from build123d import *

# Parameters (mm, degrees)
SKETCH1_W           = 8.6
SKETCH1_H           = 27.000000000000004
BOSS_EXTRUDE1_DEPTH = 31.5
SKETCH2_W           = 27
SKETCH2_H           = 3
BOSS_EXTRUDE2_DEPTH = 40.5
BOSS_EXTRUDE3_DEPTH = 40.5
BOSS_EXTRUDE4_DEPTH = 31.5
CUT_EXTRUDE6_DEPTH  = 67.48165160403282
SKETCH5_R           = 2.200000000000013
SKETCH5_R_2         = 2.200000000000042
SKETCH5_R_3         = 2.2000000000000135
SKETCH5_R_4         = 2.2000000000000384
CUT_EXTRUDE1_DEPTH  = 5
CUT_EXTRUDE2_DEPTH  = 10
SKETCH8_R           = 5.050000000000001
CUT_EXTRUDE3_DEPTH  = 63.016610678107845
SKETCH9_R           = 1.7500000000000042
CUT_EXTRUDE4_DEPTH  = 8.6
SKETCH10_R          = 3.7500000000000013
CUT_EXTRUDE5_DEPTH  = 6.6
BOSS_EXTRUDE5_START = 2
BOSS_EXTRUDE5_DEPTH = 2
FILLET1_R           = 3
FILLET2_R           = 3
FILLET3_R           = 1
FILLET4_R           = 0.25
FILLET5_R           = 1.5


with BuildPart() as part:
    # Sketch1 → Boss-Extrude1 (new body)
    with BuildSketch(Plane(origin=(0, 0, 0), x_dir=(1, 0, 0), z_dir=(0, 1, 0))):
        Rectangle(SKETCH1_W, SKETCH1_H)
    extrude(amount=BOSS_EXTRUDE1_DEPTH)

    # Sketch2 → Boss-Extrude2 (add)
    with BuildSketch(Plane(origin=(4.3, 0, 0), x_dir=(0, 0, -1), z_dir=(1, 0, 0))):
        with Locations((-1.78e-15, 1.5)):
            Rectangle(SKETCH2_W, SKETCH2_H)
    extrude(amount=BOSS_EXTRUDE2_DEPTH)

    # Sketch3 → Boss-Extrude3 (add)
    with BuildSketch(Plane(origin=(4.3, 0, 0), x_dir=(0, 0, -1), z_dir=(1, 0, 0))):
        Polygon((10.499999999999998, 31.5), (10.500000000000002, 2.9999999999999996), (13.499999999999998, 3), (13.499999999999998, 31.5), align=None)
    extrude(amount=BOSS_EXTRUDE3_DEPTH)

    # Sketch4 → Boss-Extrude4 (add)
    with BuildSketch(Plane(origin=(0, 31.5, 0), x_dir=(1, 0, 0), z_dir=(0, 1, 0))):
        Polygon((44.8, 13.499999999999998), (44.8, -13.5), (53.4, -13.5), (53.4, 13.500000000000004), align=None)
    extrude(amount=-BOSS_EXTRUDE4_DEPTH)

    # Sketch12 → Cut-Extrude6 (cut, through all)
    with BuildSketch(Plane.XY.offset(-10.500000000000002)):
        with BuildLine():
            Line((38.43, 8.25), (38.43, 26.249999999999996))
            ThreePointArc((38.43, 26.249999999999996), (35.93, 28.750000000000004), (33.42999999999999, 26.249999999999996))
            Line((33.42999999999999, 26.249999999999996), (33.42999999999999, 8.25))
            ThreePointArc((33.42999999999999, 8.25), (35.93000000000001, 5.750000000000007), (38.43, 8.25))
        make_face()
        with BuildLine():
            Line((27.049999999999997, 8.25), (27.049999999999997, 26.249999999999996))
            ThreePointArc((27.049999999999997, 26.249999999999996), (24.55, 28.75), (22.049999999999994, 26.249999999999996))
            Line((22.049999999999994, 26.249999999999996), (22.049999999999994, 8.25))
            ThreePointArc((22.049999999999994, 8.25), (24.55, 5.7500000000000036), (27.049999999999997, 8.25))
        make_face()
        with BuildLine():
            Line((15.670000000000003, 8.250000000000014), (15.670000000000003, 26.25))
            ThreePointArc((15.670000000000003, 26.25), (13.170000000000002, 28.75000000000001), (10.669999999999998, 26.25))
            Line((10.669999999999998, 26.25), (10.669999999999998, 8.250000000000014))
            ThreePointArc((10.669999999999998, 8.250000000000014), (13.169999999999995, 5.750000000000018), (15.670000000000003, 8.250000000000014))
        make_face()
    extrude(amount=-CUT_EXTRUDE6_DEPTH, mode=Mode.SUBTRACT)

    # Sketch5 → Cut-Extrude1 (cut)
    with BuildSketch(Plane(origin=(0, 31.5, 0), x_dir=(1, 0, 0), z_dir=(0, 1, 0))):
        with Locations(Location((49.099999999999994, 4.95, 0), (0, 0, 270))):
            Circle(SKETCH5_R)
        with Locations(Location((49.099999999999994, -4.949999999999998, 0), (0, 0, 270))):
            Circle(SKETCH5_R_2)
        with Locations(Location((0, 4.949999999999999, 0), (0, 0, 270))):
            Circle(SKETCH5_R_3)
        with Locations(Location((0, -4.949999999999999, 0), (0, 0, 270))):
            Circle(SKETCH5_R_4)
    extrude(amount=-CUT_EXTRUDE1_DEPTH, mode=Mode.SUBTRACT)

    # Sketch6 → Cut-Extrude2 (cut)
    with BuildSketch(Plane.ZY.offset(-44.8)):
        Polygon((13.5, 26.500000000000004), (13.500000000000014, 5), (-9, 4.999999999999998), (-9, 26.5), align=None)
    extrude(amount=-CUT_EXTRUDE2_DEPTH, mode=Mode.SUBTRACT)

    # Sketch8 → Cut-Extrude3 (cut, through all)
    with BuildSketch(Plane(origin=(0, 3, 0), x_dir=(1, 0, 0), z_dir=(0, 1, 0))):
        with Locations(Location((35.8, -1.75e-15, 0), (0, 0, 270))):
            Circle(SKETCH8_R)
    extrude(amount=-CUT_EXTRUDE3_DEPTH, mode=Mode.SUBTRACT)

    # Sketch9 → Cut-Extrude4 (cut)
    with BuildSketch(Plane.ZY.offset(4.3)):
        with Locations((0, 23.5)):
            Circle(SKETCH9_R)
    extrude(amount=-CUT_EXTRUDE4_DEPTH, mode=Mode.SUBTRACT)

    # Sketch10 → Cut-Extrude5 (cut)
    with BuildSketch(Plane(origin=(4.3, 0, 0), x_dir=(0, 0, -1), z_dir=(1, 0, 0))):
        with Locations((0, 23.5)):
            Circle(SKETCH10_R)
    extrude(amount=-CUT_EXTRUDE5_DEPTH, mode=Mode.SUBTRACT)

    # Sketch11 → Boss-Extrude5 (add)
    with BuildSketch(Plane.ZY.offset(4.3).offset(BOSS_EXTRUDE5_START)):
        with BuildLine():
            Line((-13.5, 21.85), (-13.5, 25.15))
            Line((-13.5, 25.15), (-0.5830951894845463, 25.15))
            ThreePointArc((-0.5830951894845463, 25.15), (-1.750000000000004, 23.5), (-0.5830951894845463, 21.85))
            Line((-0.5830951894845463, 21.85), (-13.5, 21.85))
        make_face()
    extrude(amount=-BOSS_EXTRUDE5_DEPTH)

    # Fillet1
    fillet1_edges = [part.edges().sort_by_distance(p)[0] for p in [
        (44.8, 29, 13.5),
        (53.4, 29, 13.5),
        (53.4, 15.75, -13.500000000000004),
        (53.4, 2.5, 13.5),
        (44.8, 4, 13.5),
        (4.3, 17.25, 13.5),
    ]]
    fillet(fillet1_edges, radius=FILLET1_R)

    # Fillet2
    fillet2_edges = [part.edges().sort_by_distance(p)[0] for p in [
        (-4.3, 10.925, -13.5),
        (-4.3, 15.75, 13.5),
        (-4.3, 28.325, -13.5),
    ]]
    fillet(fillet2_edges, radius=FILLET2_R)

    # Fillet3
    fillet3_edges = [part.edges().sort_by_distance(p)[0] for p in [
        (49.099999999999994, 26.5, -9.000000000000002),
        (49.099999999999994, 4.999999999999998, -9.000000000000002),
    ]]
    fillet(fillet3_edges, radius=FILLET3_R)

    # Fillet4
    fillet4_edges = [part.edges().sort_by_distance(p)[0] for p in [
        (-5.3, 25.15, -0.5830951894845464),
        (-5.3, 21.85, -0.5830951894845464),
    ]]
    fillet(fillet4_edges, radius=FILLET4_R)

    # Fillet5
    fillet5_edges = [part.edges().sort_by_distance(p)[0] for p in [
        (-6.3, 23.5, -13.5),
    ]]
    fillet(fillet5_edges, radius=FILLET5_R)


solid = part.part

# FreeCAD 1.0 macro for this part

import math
import FreeCAD as App
import Part
import Sketcher

V = App.Vector
Q = App.Units.Quantity


def edges_at(feature, points):
    """Names of the edges that pass closest to the given points."""
    edges = feature.Shape.Edges
    near = lambda p: min(range(len(edges)), key=lambda i: edges[i].distToShape(Part.Vertex(*p))[0])
    return sorted({f"Edge{near(p) + 1}" for p in points})

doc = App.newDocument("Part")
body = doc.addObject("PartDesign::Body", "Body")

sketch1 = body.newObject("Sketcher::SketchObject", "Sketch")
sketch1.AttachmentSupport = (doc.getObject("XZ_Plane"), [""])
sketch1.MapMode = "FlatFace"
sketch1.addGeometry(Part.LineSegment(V(-4.3, -13.5, 0), V(-4.3, 13.5, 0)), False)
sketch1.addGeometry(Part.LineSegment(V(-4.3, 13.5, 0), V(4.3, 13.5, 0)), False)
sketch1.addGeometry(Part.LineSegment(V(4.3, 13.5, 0), V(4.3, -13.5, 0)), False)
sketch1.addGeometry(Part.LineSegment(V(4.3, -13.5, 0), V(-4.3, -13.5, 0)), False)
sketch1.addConstraint(Sketcher.Constraint("Coincident", 0, 2, 1, 1))
sketch1.addConstraint(Sketcher.Constraint("Coincident", 1, 2, 2, 1))
sketch1.addConstraint(Sketcher.Constraint("Coincident", 2, 2, 3, 1))
sketch1.addConstraint(Sketcher.Constraint("Coincident", 3, 2, 0, 1))
sketch1.addConstraint(Sketcher.Constraint("Vertical", 0))
sketch1.addConstraint(Sketcher.Constraint("Horizontal", 1))
sketch1.addConstraint(Sketcher.Constraint("Vertical", 2))
sketch1.addConstraint(Sketcher.Constraint("Horizontal", 3))
sketch1.addConstraint(Sketcher.Constraint("Symmetric", 0, 2, 2, 2, -1, 1))
sketch1.addConstraint(Sketcher.Constraint("DistanceY", 0, 1, 0, 2, Q("27 mm")))
sketch1.addConstraint(Sketcher.Constraint("DistanceX", 1, 1, 1, 2, Q("8.6 mm")))
pad1 = body.newObject("PartDesign::Pad", "Pad")
pad1.Profile = sketch1
pad1.Length = 31.5
pad1.Reversed = True

sketch2 = body.newObject("Sketcher::SketchObject", "Sketch001")
sketch2.AttachmentSupport = (doc.getObject("YZ_Plane"), [""])
sketch2.MapMode = "FlatFace"
sketch2.AttachmentOffset = App.Placement(V(0, 0, 4.3), App.Rotation())
sketch2.addGeometry(Part.LineSegment(V(3, 13.5, 0), V(0, 13.5, 0)), False)
sketch2.addGeometry(Part.LineSegment(V(0, 13.5, 0), V(0, -13.5, 0)), False)
sketch2.addGeometry(Part.LineSegment(V(0, -13.5, 0), V(3, -13.5, 0)), False)
sketch2.addGeometry(Part.LineSegment(V(3, -13.5, 0), V(3, 13.5, 0)), False)
sketch2.addConstraint(Sketcher.Constraint("Coincident", 0, 2, 1, 1))
sketch2.addConstraint(Sketcher.Constraint("Coincident", 1, 2, 2, 1))
sketch2.addConstraint(Sketcher.Constraint("Coincident", 2, 2, 3, 1))
sketch2.addConstraint(Sketcher.Constraint("Coincident", 3, 2, 0, 1))
sketch2.addConstraint(Sketcher.Constraint("Horizontal", 0))
sketch2.addConstraint(Sketcher.Constraint("Vertical", 1))
sketch2.addConstraint(Sketcher.Constraint("Horizontal", 2))
sketch2.addConstraint(Sketcher.Constraint("Vertical", 3))
sketch2.addConstraint(Sketcher.Constraint("Symmetric", 0, 2, 1, 2, -1, 1))
sketch2.addConstraint(Sketcher.Constraint("DistanceX", 0, 2, 0, 1, Q("3 mm")))
sketch2.addConstraint(Sketcher.Constraint("DistanceY", 1, 2, 1, 1, Q("27 mm")))
pad2 = body.newObject("PartDesign::Pad", "Pad001")
pad2.Profile = sketch2
pad2.Length = 40.5

sketch3 = body.newObject("Sketcher::SketchObject", "Sketch002")
sketch3.AttachmentSupport = (doc.getObject("YZ_Plane"), [""])
sketch3.MapMode = "FlatFace"
sketch3.AttachmentOffset = App.Placement(V(0, 0, 4.3), App.Rotation())
sketch3.addGeometry(Part.LineSegment(V(31.5, -10.5, 0), V(3, -10.5, 0)), False)
sketch3.addGeometry(Part.LineSegment(V(3, -10.5, 0), V(3, -13.5, 0)), False)
sketch3.addGeometry(Part.LineSegment(V(3, -13.5, 0), V(31.5, -13.5, 0)), False)
sketch3.addGeometry(Part.LineSegment(V(31.5, -13.5, 0), V(31.5, -10.5, 0)), False)
sketch3.addConstraint(Sketcher.Constraint("Coincident", 0, 2, 1, 1))
sketch3.addConstraint(Sketcher.Constraint("Coincident", 1, 2, 2, 1))
sketch3.addConstraint(Sketcher.Constraint("Coincident", 2, 2, 3, 1))
sketch3.addConstraint(Sketcher.Constraint("Coincident", 3, 2, 0, 1))
sketch3.addConstraint(Sketcher.Constraint("Horizontal", 0))
sketch3.addConstraint(Sketcher.Constraint("Vertical", 1))
sketch3.addConstraint(Sketcher.Constraint("Horizontal", 2))
sketch3.addConstraint(Sketcher.Constraint("Vertical", 3))
sketch3.addConstraint(Sketcher.Constraint("DistanceY", 1, 2, 1, 1, Q("3 mm")))
sketch3.addConstraint(Sketcher.Constraint("DistanceX", 0, 2, 0, 1, Q("28.5 mm")))
sketch3.addConstraint(Sketcher.Constraint("DistanceX", -1, 1, 0, 2, Q("3 mm")))
sketch3.addConstraint(Sketcher.Constraint("DistanceY", 0, 2, -1, 1, Q("10.5 mm")))
pad3 = body.newObject("PartDesign::Pad", "Pad002")
pad3.Profile = sketch3
pad3.Length = 40.5

sketch4 = body.newObject("Sketcher::SketchObject", "Sketch003")
sketch4.AttachmentSupport = (doc.getObject("XZ_Plane"), [""])
sketch4.MapMode = "FlatFace"
sketch4.AttachmentOffset = App.Placement(V(0, 0, -31.5), App.Rotation())
sketch4.addGeometry(Part.LineSegment(V(44.8, -13.5, 0), V(44.8, 13.5, 0)), False)
sketch4.addGeometry(Part.LineSegment(V(44.8, 13.5, 0), V(53.4, 13.5, 0)), False)
sketch4.addGeometry(Part.LineSegment(V(53.4, 13.5, 0), V(53.4, -13.5, 0)), False)
sketch4.addGeometry(Part.LineSegment(V(53.4, -13.5, 0), V(44.8, -13.5, 0)), False)
sketch4.addConstraint(Sketcher.Constraint("Coincident", 0, 2, 1, 1))
sketch4.addConstraint(Sketcher.Constraint("Coincident", 1, 2, 2, 1))
sketch4.addConstraint(Sketcher.Constraint("Coincident", 2, 2, 3, 1))
sketch4.addConstraint(Sketcher.Constraint("Coincident", 3, 2, 0, 1))
sketch4.addConstraint(Sketcher.Constraint("Vertical", 0))
sketch4.addConstraint(Sketcher.Constraint("Horizontal", 1))
sketch4.addConstraint(Sketcher.Constraint("Vertical", 2))
sketch4.addConstraint(Sketcher.Constraint("Horizontal", 3))
sketch4.addConstraint(Sketcher.Constraint("DistanceY", 0, 1, 0, 2, Q("27 mm")))
sketch4.addConstraint(Sketcher.Constraint("DistanceX", 1, 1, 1, 2, Q("8.6 mm")))
sketch4.addConstraint(Sketcher.Constraint("DistanceX", -1, 1, 0, 2, Q("44.8 mm")))
sketch4.addConstraint(Sketcher.Constraint("DistanceY", -1, 1, 0, 2, Q("13.5 mm")))
pad4 = body.newObject("PartDesign::Pad", "Pad003")
pad4.Profile = sketch4
pad4.Length = 31.5

sketch5 = body.newObject("Sketcher::SketchObject", "Sketch004")
sketch5.AttachmentSupport = (doc.getObject("XY_Plane"), [""])
sketch5.MapMode = "FlatFace"
sketch5.AttachmentOffset = App.Placement(V(0, 0, -10.5), App.Rotation())
sketch5.addGeometry(Part.LineSegment(V(38.43, 8.25, 0), V(38.43, 26.25, 0)), False)
sketch5.addGeometry(Part.ArcOfCircle(Part.Circle(V(35.93, 26.25, 0), V(0, 0, 1), 2.5), math.radians(0), math.radians(180)), False)
sketch5.addGeometry(Part.LineSegment(V(33.43, 26.25, 0), V(33.43, 8.25, 0)), False)
sketch5.addGeometry(Part.ArcOfCircle(Part.Circle(V(35.93, 8.25, 0), V(0, 0, 1), 2.5), math.radians(180), math.radians(360)), False)
sketch5.addGeometry(Part.LineSegment(V(27.05, 8.25, 0), V(27.05, 26.25, 0)), False)
sketch5.addGeometry(Part.ArcOfCircle(Part.Circle(V(24.55, 26.25, 0), V(0, 0, 1), 2.5), math.radians(0), math.radians(180)), False)
sketch5.addGeometry(Part.LineSegment(V(22.05, 26.25, 0), V(22.05, 8.25, 0)), False)
sketch5.addGeometry(Part.ArcOfCircle(Part.Circle(V(24.55, 8.25, 0), V(0, 0, 1), 2.5), math.radians(180), math.radians(360)), False)
sketch5.addGeometry(Part.LineSegment(V(15.67, 8.25, 0), V(15.67, 26.25, 0)), False)
sketch5.addGeometry(Part.ArcOfCircle(Part.Circle(V(13.17, 26.25, 0), V(0, 0, 1), 2.5), math.radians(0), math.radians(180)), False)
sketch5.addGeometry(Part.LineSegment(V(10.67, 26.25, 0), V(10.67, 8.25, 0)), False)
sketch5.addGeometry(Part.ArcOfCircle(Part.Circle(V(13.17, 8.25, 0), V(0, 0, 1), 2.5), math.radians(180), math.radians(360)), False)
sketch5.addConstraint(Sketcher.Constraint("Tangent", 0, 2, 1, 1))
sketch5.addConstraint(Sketcher.Constraint("Tangent", 1, 2, 2, 1))
sketch5.addConstraint(Sketcher.Constraint("Tangent", 2, 2, 3, 1))
sketch5.addConstraint(Sketcher.Constraint("Tangent", 3, 2, 0, 1))
sketch5.addConstraint(Sketcher.Constraint("Tangent", 4, 2, 5, 1))
sketch5.addConstraint(Sketcher.Constraint("Tangent", 5, 2, 6, 1))
sketch5.addConstraint(Sketcher.Constraint("Tangent", 6, 2, 7, 1))
sketch5.addConstraint(Sketcher.Constraint("Tangent", 7, 2, 4, 1))
sketch5.addConstraint(Sketcher.Constraint("Tangent", 8, 2, 9, 1))
sketch5.addConstraint(Sketcher.Constraint("Tangent", 9, 2, 10, 1))
sketch5.addConstraint(Sketcher.Constraint("Tangent", 10, 2, 11, 1))
sketch5.addConstraint(Sketcher.Constraint("Tangent", 11, 2, 8, 1))
sketch5.addConstraint(Sketcher.Constraint("Vertical", 0))
sketch5.addConstraint(Sketcher.Constraint("Vertical", 2))
sketch5.addConstraint(Sketcher.Constraint("Vertical", 4))
sketch5.addConstraint(Sketcher.Constraint("Vertical", 6))
sketch5.addConstraint(Sketcher.Constraint("Vertical", 8))
sketch5.addConstraint(Sketcher.Constraint("Vertical", 10))
sketch5.addConstraint(Sketcher.Constraint("Equal", 3, 5))
sketch5.addConstraint(Sketcher.Constraint("Equal", 7, 9))
sketch5.addConstraint(Sketcher.Constraint("Horizontal", 1, 3, 5, 3))
sketch5.addConstraint(Sketcher.Constraint("Horizontal", 3, 3, 7, 3))
sketch5.addConstraint(Sketcher.Constraint("Horizontal", 5, 3, 9, 3))
sketch5.addConstraint(Sketcher.Constraint("Horizontal", 7, 3, 11, 3))
sketch5.addConstraint(Sketcher.Constraint("Radius", 1, Q("2.5 mm")))
sketch5.addConstraint(Sketcher.Constraint("DistanceY", 0, 1, 0, 2, Q("18 mm")))
sketch5.addConstraint(Sketcher.Constraint("DistanceX", -1, 1, 1, 3, Q("35.93 mm")))
sketch5.addConstraint(Sketcher.Constraint("DistanceY", -1, 1, 1, 3, Q("26.25 mm")))
sketch5.addConstraint(Sketcher.Constraint("DistanceX", -1, 1, 5, 3, Q("24.55 mm")))
sketch5.addConstraint(Sketcher.Constraint("DistanceX", -1, 1, 9, 3, Q("13.17 mm")))
pocket1 = body.newObject("PartDesign::Pocket", "Pocket")
pocket1.Profile = sketch5
pocket1.Type = "ThroughAll"

sketch6 = body.newObject("Sketcher::SketchObject", "Sketch005")
sketch6.AttachmentSupport = (doc.getObject("XZ_Plane"), [""])
sketch6.MapMode = "FlatFace"
sketch6.AttachmentOffset = App.Placement(V(0, 0, -31.5), App.Rotation())
sketch6.addGeometry(Part.Circle(V(49.1, -4.95, 0), V(0, 0, 1), 2.2), False)
sketch6.addGeometry(Part.Circle(V(49.1, 4.95, 0), V(0, 0, 1), 2.2), False)
sketch6.addGeometry(Part.Circle(V(0, -4.95, 0), V(0, 0, 1), 2.2), False)
sketch6.addGeometry(Part.Circle(V(0, 4.95, 0), V(0, 0, 1), 2.2), False)
sketch6.addConstraint(Sketcher.Constraint("Equal", 0, 1))
sketch6.addConstraint(Sketcher.Constraint("Equal", 1, 2))
sketch6.addConstraint(Sketcher.Constraint("Equal", 2, 3))
sketch6.addConstraint(Sketcher.Constraint("Symmetric", 2, 3, 3, 3, -1, 1))
sketch6.addConstraint(Sketcher.Constraint("Symmetric", 0, 3, 1, 3, -1))
sketch6.addConstraint(Sketcher.Constraint("PointOnObject", 2, 3, -2))
sketch6.addConstraint(Sketcher.Constraint("Horizontal", 0, 3, 2, 3))
sketch6.addConstraint(Sketcher.Constraint("Diameter", 0, Q("4.4 mm")))
sketch6.addConstraint(Sketcher.Constraint("DistanceX", -1, 1, 0, 3, Q("49.1 mm")))
sketch6.addConstraint(Sketcher.Constraint("DistanceY", 0, 3, 1, 3, Q("9.9 mm")))
pocket2 = body.newObject("PartDesign::Pocket", "Pocket001")
pocket2.Profile = sketch6
pocket2.Length = 5
pocket2.Reversed = True

sketch7 = body.newObject("Sketcher::SketchObject", "Sketch006")
sketch7.AttachmentSupport = (doc.getObject("YZ_Plane"), [""])
sketch7.MapMode = "FlatFace"
sketch7.AttachmentOffset = App.Placement(V(0, 0, 44.8), App.Rotation())
sketch7.addGeometry(Part.LineSegment(V(5, 13.5, 0), V(26.5, 13.5, 0)), False)
sketch7.addGeometry(Part.LineSegment(V(26.5, 13.5, 0), V(26.5, -9, 0)), False)
sketch7.addGeometry(Part.LineSegment(V(26.5, -9, 0), V(5, -9, 0)), False)
sketch7.addGeometry(Part.LineSegment(V(5, -9, 0), V(5, 13.5, 0)), False)
sketch7.addConstraint(Sketcher.Constraint("Coincident", 0, 2, 1, 1))
sketch7.addConstraint(Sketcher.Constraint("Coincident", 1, 2, 2, 1))
sketch7.addConstraint(Sketcher.Constraint("Coincident", 2, 2, 3, 1))
sketch7.addConstraint(Sketcher.Constraint("Coincident", 3, 2, 0, 1))
sketch7.addConstraint(Sketcher.Constraint("Horizontal", 0))
sketch7.addConstraint(Sketcher.Constraint("Vertical", 1))
sketch7.addConstraint(Sketcher.Constraint("Horizontal", 2))
sketch7.addConstraint(Sketcher.Constraint("Vertical", 3))
sketch7.addConstraint(Sketcher.Constraint("DistanceX", 0, 1, 0, 2, Q("21.5 mm")))
sketch7.addConstraint(Sketcher.Constraint("DistanceY", 1, 2, 1, 1, Q("22.5 mm")))
sketch7.addConstraint(Sketcher.Constraint("DistanceY", 1, 2, -1, 1, Q("9 mm")))
sketch7.addConstraint(Sketcher.Constraint("DistanceX", -1, 1, 2, 2, Q("5 mm")))
pocket3 = body.newObject("PartDesign::Pocket", "Pocket002")
pocket3.Profile = sketch7
pocket3.Length = 10
pocket3.Reversed = True

sketch8 = body.newObject("Sketcher::SketchObject", "Sketch007")
sketch8.AttachmentSupport = (doc.getObject("XZ_Plane"), [""])
sketch8.MapMode = "FlatFace"
sketch8.AttachmentOffset = App.Placement(V(0, 0, -3), App.Rotation())
sketch8.addGeometry(Part.Circle(V(35.8, 0, 0), V(0, 0, 1), 5.05), False)
sketch8.addConstraint(Sketcher.Constraint("PointOnObject", 0, 3, -1))
sketch8.addConstraint(Sketcher.Constraint("Diameter", 0, Q("10.1 mm")))
sketch8.addConstraint(Sketcher.Constraint("DistanceX", -1, 1, 0, 3, Q("35.8 mm")))
pocket4 = body.newObject("PartDesign::Pocket", "Pocket003")
pocket4.Profile = sketch8
pocket4.Type = "ThroughAll"
pocket4.Reversed = True

sketch9 = body.newObject("Sketcher::SketchObject", "Sketch008")
sketch9.AttachmentSupport = (doc.getObject("YZ_Plane"), [""])
sketch9.MapMode = "FlatFace"
sketch9.AttachmentOffset = App.Placement(V(0, 0, -4.3), App.Rotation())
sketch9.addGeometry(Part.Circle(V(23.5, 0, 0), V(0, 0, 1), 1.75), False)
sketch9.addConstraint(Sketcher.Constraint("PointOnObject", 0, 3, -1))
sketch9.addConstraint(Sketcher.Constraint("Diameter", 0, Q("3.5 mm")))
sketch9.addConstraint(Sketcher.Constraint("DistanceX", -1, 1, 0, 3, Q("23.5 mm")))
pocket5 = body.newObject("PartDesign::Pocket", "Pocket004")
pocket5.Profile = sketch9
pocket5.Length = 8.6
pocket5.Reversed = True

sketch10 = body.newObject("Sketcher::SketchObject", "Sketch009")
sketch10.AttachmentSupport = (doc.getObject("YZ_Plane"), [""])
sketch10.MapMode = "FlatFace"
sketch10.AttachmentOffset = App.Placement(V(0, 0, 4.3), App.Rotation())
sketch10.addGeometry(Part.Circle(V(23.5, 0, 0), V(0, 0, 1), 3.75), False)
sketch10.addConstraint(Sketcher.Constraint("PointOnObject", 0, 3, -1))
sketch10.addConstraint(Sketcher.Constraint("Diameter", 0, Q("7.5 mm")))
sketch10.addConstraint(Sketcher.Constraint("DistanceX", -1, 1, 0, 3, Q("23.5 mm")))
pocket6 = body.newObject("PartDesign::Pocket", "Pocket005")
pocket6.Profile = sketch10
pocket6.Length = 6.6

sketch11 = body.newObject("Sketcher::SketchObject", "Sketch010")
sketch11.AttachmentSupport = (doc.getObject("YZ_Plane"), [""])
sketch11.MapMode = "FlatFace"
sketch11.AttachmentOffset = App.Placement(V(0, 0, -6.3), App.Rotation())
sketch11.addGeometry(Part.LineSegment(V(25.15, -13.5, 0), V(21.85, -13.5, 0)), False)
sketch11.addGeometry(Part.LineSegment(V(21.85, -13.5, 0), V(21.85, -0.583095, 0)), False)
sketch11.addGeometry(Part.ArcOfCircle(Part.Circle(V(23.5, 0, 0), V(0, 0, 1), 1.75), math.radians(-160.537049), math.radians(-19.462951)), False)
sketch11.addGeometry(Part.LineSegment(V(25.15, -0.583095, 0), V(25.15, -13.5, 0)), False)
sketch11.addConstraint(Sketcher.Constraint("Coincident", 0, 2, 1, 1))
sketch11.addConstraint(Sketcher.Constraint("Coincident", 1, 2, 2, 1))
sketch11.addConstraint(Sketcher.Constraint("Coincident", 2, 2, 3, 1))
sketch11.addConstraint(Sketcher.Constraint("Coincident", 3, 2, 0, 1))
sketch11.addConstraint(Sketcher.Constraint("Horizontal", 0))
sketch11.addConstraint(Sketcher.Constraint("Vertical", 1))
sketch11.addConstraint(Sketcher.Constraint("Vertical", 3))
sketch11.addConstraint(Sketcher.Constraint("PointOnObject", 2, 3, -1))
sketch11.addConstraint(Sketcher.Constraint("Horizontal", 1, 2, 2, 2))
sketch11.addConstraint(Sketcher.Constraint("Radius", 2, Q("1.75 mm")))
sketch11.addConstraint(Sketcher.Constraint("DistanceX", 0, 2, 0, 1, Q("3.3 mm")))
sketch11.addConstraint(Sketcher.Constraint("DistanceX", -1, 1, 2, 3, Q("23.5 mm")))
sketch11.addConstraint(Sketcher.Constraint("DistanceY", 0, 2, -1, 1, Q("13.5 mm")))
pad5 = body.newObject("PartDesign::Pad", "Pad004")
pad5.Profile = sketch11
pad5.Length = 2
doc.recompute()

fillet = body.newObject("PartDesign::Fillet", "Fillet")
fillet.Base = (pad5, edges_at(pad5, [
    (44.8, 29, 13.5),
    (53.4, 29, 13.5),
    (53.4, 15.75, -13.5),
    (53.4, 2.5, 13.5),
    (44.8, 4, 13.5),
    (4.3, 17.25, 13.5),
]))
fillet.Radius = 3
doc.recompute()

fillet2 = body.newObject("PartDesign::Fillet", "Fillet001")
fillet2.Base = (fillet, edges_at(fillet, [(-4.3, 10.925, -13.5), (-4.3, 15.75, 13.5), (-4.3, 28.325, -13.5)]))
fillet2.Radius = 3
doc.recompute()

fillet3 = body.newObject("PartDesign::Fillet", "Fillet002")
fillet3.Base = (fillet2, edges_at(fillet2, [(49.1, 26.5, -9), (49.1, 5, -9)]))
fillet3.Radius = 1
doc.recompute()

fillet4 = body.newObject("PartDesign::Fillet", "Fillet003")
fillet4.Base = (fillet3, edges_at(fillet3, [(-5.3, 25.15, -0.583), (-5.3, 21.85, -0.583)]))
fillet4.Radius = 0.25
doc.recompute()

fillet5 = body.newObject("PartDesign::Fillet", "Fillet004")
fillet5.Base = (fillet4, edges_at(fillet4, [(-6.3, 23.5, -13.5)]))
fillet5.Radius = 1.5

doc.recompute()
